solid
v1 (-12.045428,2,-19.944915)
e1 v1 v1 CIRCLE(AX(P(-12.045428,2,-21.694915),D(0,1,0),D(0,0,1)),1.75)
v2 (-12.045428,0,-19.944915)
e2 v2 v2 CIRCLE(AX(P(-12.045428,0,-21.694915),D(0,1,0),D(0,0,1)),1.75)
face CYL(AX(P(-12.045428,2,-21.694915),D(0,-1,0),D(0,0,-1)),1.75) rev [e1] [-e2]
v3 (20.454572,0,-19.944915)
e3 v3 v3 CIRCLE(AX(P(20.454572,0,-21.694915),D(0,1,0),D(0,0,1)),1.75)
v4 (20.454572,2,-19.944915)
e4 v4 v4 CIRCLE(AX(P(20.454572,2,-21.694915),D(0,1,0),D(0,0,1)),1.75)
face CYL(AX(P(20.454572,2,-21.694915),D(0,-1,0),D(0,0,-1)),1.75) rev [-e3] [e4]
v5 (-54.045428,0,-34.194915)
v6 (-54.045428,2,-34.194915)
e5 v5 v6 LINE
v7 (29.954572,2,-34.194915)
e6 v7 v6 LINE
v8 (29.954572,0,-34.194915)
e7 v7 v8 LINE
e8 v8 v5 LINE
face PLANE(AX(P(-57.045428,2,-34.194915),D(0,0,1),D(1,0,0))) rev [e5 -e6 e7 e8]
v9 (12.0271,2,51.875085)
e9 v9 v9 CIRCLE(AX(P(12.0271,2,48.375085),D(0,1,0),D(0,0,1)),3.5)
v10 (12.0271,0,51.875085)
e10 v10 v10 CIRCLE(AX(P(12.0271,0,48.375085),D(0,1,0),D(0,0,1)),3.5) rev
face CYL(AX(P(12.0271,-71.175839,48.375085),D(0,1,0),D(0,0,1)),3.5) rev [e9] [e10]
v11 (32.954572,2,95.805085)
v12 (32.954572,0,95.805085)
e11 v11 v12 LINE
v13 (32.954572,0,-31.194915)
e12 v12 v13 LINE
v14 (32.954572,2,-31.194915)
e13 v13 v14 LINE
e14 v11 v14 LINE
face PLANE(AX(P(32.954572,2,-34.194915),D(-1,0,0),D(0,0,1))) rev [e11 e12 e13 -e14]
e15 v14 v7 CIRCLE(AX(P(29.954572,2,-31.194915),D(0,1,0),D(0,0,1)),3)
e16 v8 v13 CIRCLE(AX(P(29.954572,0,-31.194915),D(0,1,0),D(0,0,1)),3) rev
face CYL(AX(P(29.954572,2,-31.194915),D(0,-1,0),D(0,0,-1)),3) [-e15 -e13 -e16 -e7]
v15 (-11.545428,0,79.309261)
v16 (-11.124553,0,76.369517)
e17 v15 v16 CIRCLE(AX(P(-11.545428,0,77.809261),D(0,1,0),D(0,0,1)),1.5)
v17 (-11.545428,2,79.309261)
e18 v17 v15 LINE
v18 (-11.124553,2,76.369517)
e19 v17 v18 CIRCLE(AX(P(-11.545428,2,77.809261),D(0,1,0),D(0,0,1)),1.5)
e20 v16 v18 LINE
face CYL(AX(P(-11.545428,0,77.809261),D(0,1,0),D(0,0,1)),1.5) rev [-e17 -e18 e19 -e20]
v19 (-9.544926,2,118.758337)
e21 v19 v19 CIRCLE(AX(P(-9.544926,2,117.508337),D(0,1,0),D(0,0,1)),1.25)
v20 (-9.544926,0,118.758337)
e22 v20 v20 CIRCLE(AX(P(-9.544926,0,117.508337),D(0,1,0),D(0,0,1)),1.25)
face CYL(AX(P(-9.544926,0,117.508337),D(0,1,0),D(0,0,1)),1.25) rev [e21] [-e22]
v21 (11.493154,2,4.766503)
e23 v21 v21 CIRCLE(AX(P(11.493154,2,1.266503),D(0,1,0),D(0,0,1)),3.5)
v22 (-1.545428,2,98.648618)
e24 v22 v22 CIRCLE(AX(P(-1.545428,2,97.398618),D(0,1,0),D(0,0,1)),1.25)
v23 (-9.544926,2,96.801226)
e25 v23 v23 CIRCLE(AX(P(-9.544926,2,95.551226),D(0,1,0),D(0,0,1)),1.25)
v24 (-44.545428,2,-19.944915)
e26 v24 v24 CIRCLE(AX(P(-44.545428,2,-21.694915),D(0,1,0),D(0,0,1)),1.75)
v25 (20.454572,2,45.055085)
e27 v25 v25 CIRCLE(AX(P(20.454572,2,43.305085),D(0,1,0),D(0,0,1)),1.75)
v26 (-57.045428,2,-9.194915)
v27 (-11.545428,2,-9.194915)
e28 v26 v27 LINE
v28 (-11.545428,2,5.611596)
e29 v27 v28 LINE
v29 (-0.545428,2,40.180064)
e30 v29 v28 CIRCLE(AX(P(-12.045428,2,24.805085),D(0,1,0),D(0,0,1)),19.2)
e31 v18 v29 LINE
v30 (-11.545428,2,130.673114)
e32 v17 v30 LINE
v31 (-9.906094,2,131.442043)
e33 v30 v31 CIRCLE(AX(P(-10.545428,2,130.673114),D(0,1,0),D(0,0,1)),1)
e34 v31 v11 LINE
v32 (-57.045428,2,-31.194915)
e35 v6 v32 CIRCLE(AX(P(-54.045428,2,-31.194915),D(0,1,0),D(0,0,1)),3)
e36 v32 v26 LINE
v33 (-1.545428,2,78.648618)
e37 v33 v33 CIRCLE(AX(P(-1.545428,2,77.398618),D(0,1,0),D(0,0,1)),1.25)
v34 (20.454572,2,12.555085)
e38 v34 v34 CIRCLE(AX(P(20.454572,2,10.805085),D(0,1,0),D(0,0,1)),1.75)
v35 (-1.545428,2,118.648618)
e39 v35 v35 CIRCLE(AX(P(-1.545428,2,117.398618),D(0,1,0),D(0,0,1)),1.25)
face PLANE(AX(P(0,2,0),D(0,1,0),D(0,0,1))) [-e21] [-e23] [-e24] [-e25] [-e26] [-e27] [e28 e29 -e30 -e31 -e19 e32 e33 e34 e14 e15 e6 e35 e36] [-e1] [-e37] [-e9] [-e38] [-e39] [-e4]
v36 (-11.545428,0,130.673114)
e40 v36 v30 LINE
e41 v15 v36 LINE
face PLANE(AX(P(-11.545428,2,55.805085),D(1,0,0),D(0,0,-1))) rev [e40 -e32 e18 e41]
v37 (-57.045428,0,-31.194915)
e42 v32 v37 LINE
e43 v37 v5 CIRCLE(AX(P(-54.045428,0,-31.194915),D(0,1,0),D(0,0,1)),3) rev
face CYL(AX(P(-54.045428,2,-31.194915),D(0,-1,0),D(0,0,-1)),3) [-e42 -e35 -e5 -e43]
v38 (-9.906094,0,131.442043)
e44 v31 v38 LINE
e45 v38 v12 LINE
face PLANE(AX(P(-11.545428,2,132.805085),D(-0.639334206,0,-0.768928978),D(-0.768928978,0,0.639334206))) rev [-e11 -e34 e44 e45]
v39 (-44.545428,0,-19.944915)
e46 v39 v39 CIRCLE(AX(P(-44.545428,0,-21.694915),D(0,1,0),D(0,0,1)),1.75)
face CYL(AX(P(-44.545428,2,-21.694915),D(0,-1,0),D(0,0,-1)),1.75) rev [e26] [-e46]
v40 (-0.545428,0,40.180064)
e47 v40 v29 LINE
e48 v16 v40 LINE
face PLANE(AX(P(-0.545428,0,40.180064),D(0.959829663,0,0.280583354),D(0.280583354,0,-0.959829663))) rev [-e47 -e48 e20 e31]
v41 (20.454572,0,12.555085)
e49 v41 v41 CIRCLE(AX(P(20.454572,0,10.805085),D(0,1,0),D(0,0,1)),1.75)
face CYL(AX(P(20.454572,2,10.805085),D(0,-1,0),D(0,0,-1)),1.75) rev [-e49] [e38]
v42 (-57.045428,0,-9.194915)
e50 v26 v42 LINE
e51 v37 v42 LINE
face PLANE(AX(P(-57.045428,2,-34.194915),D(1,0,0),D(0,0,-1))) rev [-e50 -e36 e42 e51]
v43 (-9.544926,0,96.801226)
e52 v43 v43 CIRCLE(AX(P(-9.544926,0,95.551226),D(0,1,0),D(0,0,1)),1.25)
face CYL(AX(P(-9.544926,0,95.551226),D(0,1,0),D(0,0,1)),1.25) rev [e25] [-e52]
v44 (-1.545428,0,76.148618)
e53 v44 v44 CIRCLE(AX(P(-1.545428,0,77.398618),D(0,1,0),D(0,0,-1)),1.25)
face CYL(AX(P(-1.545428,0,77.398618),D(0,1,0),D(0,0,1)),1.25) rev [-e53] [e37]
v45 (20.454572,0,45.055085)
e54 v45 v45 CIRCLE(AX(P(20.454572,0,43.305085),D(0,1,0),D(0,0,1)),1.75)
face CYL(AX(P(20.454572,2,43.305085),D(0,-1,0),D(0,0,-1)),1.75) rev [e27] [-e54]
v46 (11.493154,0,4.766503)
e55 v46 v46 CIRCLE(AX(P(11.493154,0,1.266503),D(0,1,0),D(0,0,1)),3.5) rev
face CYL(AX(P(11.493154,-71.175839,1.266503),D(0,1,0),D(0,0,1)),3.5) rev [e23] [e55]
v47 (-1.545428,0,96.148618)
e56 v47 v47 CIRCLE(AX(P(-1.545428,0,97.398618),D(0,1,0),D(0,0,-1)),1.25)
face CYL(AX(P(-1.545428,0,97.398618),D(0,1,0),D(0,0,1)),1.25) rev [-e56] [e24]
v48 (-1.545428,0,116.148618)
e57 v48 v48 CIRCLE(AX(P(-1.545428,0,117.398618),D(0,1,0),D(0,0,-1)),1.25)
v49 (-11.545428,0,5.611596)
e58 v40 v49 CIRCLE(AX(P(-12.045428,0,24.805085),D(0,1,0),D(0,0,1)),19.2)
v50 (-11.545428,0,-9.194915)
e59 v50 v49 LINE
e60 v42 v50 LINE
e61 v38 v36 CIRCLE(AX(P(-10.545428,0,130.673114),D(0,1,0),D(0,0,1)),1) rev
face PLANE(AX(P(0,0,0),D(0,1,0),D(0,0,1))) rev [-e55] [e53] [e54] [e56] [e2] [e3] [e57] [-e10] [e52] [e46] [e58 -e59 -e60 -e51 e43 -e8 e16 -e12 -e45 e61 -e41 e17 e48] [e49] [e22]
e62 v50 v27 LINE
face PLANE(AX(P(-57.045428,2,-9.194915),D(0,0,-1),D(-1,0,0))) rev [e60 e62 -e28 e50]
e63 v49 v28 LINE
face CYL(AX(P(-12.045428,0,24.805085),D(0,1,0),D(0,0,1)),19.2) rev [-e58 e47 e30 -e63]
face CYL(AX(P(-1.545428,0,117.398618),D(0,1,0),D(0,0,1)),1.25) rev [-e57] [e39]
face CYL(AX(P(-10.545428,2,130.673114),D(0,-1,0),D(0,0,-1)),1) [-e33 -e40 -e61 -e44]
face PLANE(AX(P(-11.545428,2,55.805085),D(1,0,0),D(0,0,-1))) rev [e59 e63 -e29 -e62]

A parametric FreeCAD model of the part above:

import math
import FreeCAD as App
import Part
import Sketcher


def edges_at(feature, points):
    """Names of the edges that pass closest to the given points."""
    edges = feature.Shape.Edges
    near = lambda p: min(range(len(edges)), key=lambda i: edges[i].distToShape(Part.Vertex(*p))[0])
    return sorted({f"Edge{near(p) + 1}" for p in points})

doc = App.newDocument("Part")
params = doc.addObject("Spreadsheet::Sheet", "Params")
for row, (alias, value) in enumerate([
    ("sketch1_diameter", "3.5 mm"),
    ("sketch1_width", "90 mm"),
    ("sketch1_width2", "29 mm"),
    ("sketch1_height", "25 mm"),
    ("sketch1_height2", "65 mm"),
    ("pad1_length", "2 mm"),
    ("sketch2_diameter", "7 mm"),
    ("sketch2_width", "29 mm"),
    ("sketch2_height", "65 mm"),
    ("pad2_length", "2 mm"),
    ("sketch3_diameter", "38.4 mm"),
    ("fillet_radius", "3 mm"),
    ("sketch5_diameter", "3 mm"),
    ("fillet2_radius", "1 mm"),
    ("sketch6_diameter", "2.5 mm"),
    ("sketch7_diameter", "2.5 mm"),
], start=1):
    params.set(f"A{row}", alias)
    params.set(f"B{row}", "=" + value)
    params.setAlias(f"B{row}", alias)

body = doc.addObject("PartDesign::Body", "Body")

sketch1 = doc.addObject("Sketcher::SketchObject", "Sketch")
body.addObject(sketch1)
sketch1.AttachmentSupport = (doc.XZ_Plane, [""])
sketch1.MapMode = "FlatFace"
sketch1.addGeometry([
    Part.LineSegment(App.Vector(32.954572, -34.194915, 0), App.Vector(-57.045428, -34.194915, 0)),
    Part.LineSegment(App.Vector(-57.045428, -34.194915, 0), App.Vector(-57.045428, -9.194915, 0)),
    Part.LineSegment(App.Vector(-57.045428, -9.194915, 0), App.Vector(17.454572, -9.194915, 0)),
    Part.LineSegment(App.Vector(17.454572, -9.194915, 0), App.Vector(17.454572, 55.805085, 0)),
    Part.LineSegment(App.Vector(17.454572, 55.805085, 0), App.Vector(-11.545428, 55.805085, 0)),
    Part.LineSegment(App.Vector(-11.545428, 55.805085, 0), App.Vector(-11.545428, 132.805085, 0)),
    Part.LineSegment(App.Vector(-11.545428, 132.805085, 0), App.Vector(32.954572, 95.805085, 0)),
    Part.LineSegment(App.Vector(32.954572, 95.805085, 0), App.Vector(32.954572, -34.194915, 0)),
    Part.Circle(App.Vector(20.454572, 43.305085, 0), App.Vector(0, 0, 1), 1.75),
    Part.Circle(App.Vector(20.454572, 10.805085, 0), App.Vector(0, 0, 1), 1.75),
    Part.Circle(App.Vector(20.454572, -21.694915, 0), App.Vector(0, 0, 1), 1.75),
    Part.Circle(App.Vector(-12.045428, -21.694915, 0), App.Vector(0, 0, 1), 1.75),
    Part.Circle(App.Vector(-44.545428, -21.694915, 0), App.Vector(0, 0, 1), 1.75),
], False)
sketch1.addConstraint([
    Sketcher.Constraint("Coincident", 0, 2, 1, 1),
    Sketcher.Constraint("Coincident", 1, 2, 2, 1),
    Sketcher.Constraint("Coincident", 2, 2, 3, 1),
    Sketcher.Constraint("Coincident", 3, 2, 4, 1),
    Sketcher.Constraint("Coincident", 4, 2, 5, 1),
    Sketcher.Constraint("Coincident", 5, 2, 6, 1),
    Sketcher.Constraint("Coincident", 6, 2, 7, 1),
    Sketcher.Constraint("Coincident", 7, 2, 0, 1),
    Sketcher.Constraint("Horizontal", 0),
    Sketcher.Constraint("Vertical", 1),
    Sketcher.Constraint("Horizontal", 2),
    Sketcher.Constraint("Vertical", 3),
    Sketcher.Constraint("Horizontal", 4),
    Sketcher.Constraint("Vertical", 5),
    Sketcher.Constraint("Vertical", 7),
    Sketcher.Constraint("Equal", 8, 9),
    Sketcher.Constraint("Equal", 9, 10),
    Sketcher.Constraint("Equal", 10, 11),
    Sketcher.Constraint("Equal", 11, 12),
    Sketcher.Constraint("Horizontal", 10, 3, 11, 3),
    Sketcher.Constraint("Horizontal", 11, 3, 12, 3),
    Sketcher.Constraint("Vertical", 8, 3, 9, 3),
    Sketcher.Constraint("Vertical", 9, 3, 10, 3),
    Sketcher.Constraint("Diameter", 8, 3.5),
    Sketcher.Constraint("DistanceX", 0, 2, 0, 1, 90.0),
    Sketcher.Constraint("DistanceX", 4, 2, 4, 1, 29.0),
    Sketcher.Constraint("DistanceY", 1, 1, 1, 2, 25.0),
    Sketcher.Constraint("DistanceY", 3, 1, 3, 2, 65.0),
    Sketcher.Constraint("DistanceY", 5, 1, 5, 2, 77.0),
    Sketcher.Constraint("DistanceY", 7, 2, 7, 1, 130.0),
    Sketcher.Constraint("DistanceX", 2, 1, 2, 2, 74.5),
    Sketcher.Constraint("DistanceY", 10, 3, 8, 3, 65.0),
    Sketcher.Constraint("DistanceX", 12, 3, 10, 3, 65.0),
    Sketcher.Constraint("DistanceX", 0, 2, 11, 3, 45.0),
    Sketcher.Constraint("DistanceY", 0, 2, 9, 3, 45.0),
    Sketcher.Constraint("DistanceX", 2, 2, 10, 3, 3.0),
    Sketcher.Constraint("DistanceY", 9, 3, 8, 3, 32.5),
    Sketcher.Constraint("DistanceX", -1, 1, 8, 3, 20.454572),
    Sketcher.Constraint("DistanceY", -1, 1, 8, 3, 43.305085),
])
sketch1.setExpression("Constraints[23]", "Params.sketch1_diameter")
sketch1.setExpression("Constraints[24]", "Params.sketch1_width")
sketch1.setExpression("Constraints[25]", "Params.sketch1_width2")
sketch1.setExpression("Constraints[26]", "Params.sketch1_height")
sketch1.setExpression("Constraints[27]", "Params.sketch1_height2")
pad1 = doc.addObject("PartDesign::Pad", "Pad")
body.addObject(pad1)
pad1.Profile = sketch1
pad1.setExpression("Length", "Params.pad1_length")
pad1.Reversed = True

sketch2 = doc.addObject("Sketcher::SketchObject", "Sketch001")
body.addObject(sketch2)
sketch2.AttachmentSupport = (doc.XZ_Plane, [""])
sketch2.MapMode = "FlatFace"
sketch2.AttachmentOffset = App.Placement(App.Vector(0, 0, -2), App.Rotation())
sketch2.addGeometry([
    Part.LineSegment(App.Vector(-11.545428, -9.194915, 0), App.Vector(-11.545428, 55.805085, 0)),
    Part.LineSegment(App.Vector(-11.545428, 55.805085, 0), App.Vector(17.454572, 55.805085, 0)),
    Part.LineSegment(App.Vector(17.454572, 55.805085, 0), App.Vector(17.454572, -9.194915, 0)),
    Part.LineSegment(App.Vector(17.454572, -9.194915, 0), App.Vector(-11.545428, -9.194915, 0)),
    Part.Circle(App.Vector(12.0271, 48.375085, 0), App.Vector(0, 0, 1), 3.5),
    Part.Circle(App.Vector(11.493154, 1.266503, 0), App.Vector(0, 0, 1), 3.5),
], False)
sketch2.addConstraint([
    Sketcher.Constraint("Coincident", 0, 2, 1, 1),
    Sketcher.Constraint("Coincident", 1, 2, 2, 1),
    Sketcher.Constraint("Coincident", 2, 2, 3, 1),
    Sketcher.Constraint("Coincident", 3, 2, 0, 1),
    Sketcher.Constraint("Vertical", 0),
    Sketcher.Constraint("Horizontal", 1),
    Sketcher.Constraint("Vertical", 2),
    Sketcher.Constraint("Horizontal", 3),
    Sketcher.Constraint("Equal", 4, 5),
    Sketcher.Constraint("Diameter", 4, 7.0),
    Sketcher.Constraint("DistanceX", 1, 1, 1, 2, 29.0),
    Sketcher.Constraint("DistanceY", 0, 1, 0, 2, 65.0),
    Sketcher.Constraint("DistanceY", 4, 3, 0, 2, 7.43),
    Sketcher.Constraint("DistanceX", -1, 1, 4, 3, 12.0271),
    Sketcher.Constraint("DistanceX", 0, 2, -1, 1, 11.545428),
    Sketcher.Constraint("DistanceY", -1, 1, 4, 3, 48.375085),
    Sketcher.Constraint("DistanceX", -1, 1, 5, 3, 11.493154),
    Sketcher.Constraint("DistanceY", -1, 1, 5, 3, 1.266503),
])
sketch2.setExpression("Constraints[9]", "Params.sketch2_diameter")
sketch2.setExpression("Constraints[10]", "Params.sketch2_width")
sketch2.setExpression("Constraints[11]", "Params.sketch2_height")
pad2 = doc.addObject("PartDesign::Pad", "Pad001")
body.addObject(pad2)
pad2.Profile = sketch2
pad2.setExpression("Length", "Params.pad2_length")

sketch3 = doc.addObject("Sketcher::SketchObject", "Sketch002")
body.addObject(sketch3)
sketch3.AttachmentSupport = (doc.XZ_Plane, [""])
sketch3.MapMode = "FlatFace"
sketch3.AttachmentOffset = App.Placement(App.Vector(0, 0, -2), App.Rotation())
sketch3.addGeometry(Part.Circle(App.Vector(-12.045428, 24.805085, 0), App.Vector(0, 0, 1), 19.2), False)
sketch3.addConstraint([
    Sketcher.Constraint("Diameter", 0, 38.4),
    Sketcher.Constraint("DistanceX", 0, 3, -1, 1, 12.045428),
    Sketcher.Constraint("DistanceY", -1, 1, 0, 3, 24.805085),
])
sketch3.setExpression("Constraints[0]", "Params.sketch3_diameter")
pocket1 = doc.addObject("PartDesign::Pocket", "Pocket")
body.addObject(pocket1)
pocket1.Profile = sketch3
pocket1.Type = "ThroughAll"
pocket1.Midplane = True

sketch4 = doc.addObject("Sketcher::SketchObject", "Sketch003")
body.addObject(sketch4)
sketch4.AttachmentSupport = (doc.XZ_Plane, [""])
sketch4.MapMode = "FlatFace"
sketch4.AttachmentOffset = App.Placement(App.Vector(0, 0, -2), App.Rotation())
sketch4.addGeometry([
    Part.LineSegment(App.Vector(-11.545428, 77.809261, 0), App.Vector(-0.545428, 40.180064, 0)),
    Part.ArcOfCircle(Part.Circle(App.Vector(-12.10703, 24.627628, 0), App.Vector(0, 0, 1), 19.379085), math.radians(53.373076), math.radians(88.339348)),
    Part.LineSegment(App.Vector(-11.545428, 43.998573, 0), App.Vector(-11.545428, 77.809261, 0)),
], False)
sketch4.addConstraint([
    Sketcher.Constraint("Coincident", 0, 2, 1, 1),
    Sketcher.Constraint("Coincident", 1, 2, 2, 1),
    Sketcher.Constraint("Coincident", 2, 2, 0, 1),
    Sketcher.Constraint("Vertical", 2),
    Sketcher.Constraint("DistanceX", 1, 2, 0, 2, 11.0),
    Sketcher.Constraint("Radius", 1, 19.379085),
    Sketcher.Constraint("DistanceY", 2, 1, 2, 2, 33.810688),
    Sketcher.Constraint("DistanceX", 1, 3, 0, 2, 11.561602),
    Sketcher.Constraint("DistanceX", 1, 3, -1, 1, 12.10703),
    Sketcher.Constraint("DistanceY", -1, 1, 2, 2, 77.809261),
])
pocket2 = doc.addObject("PartDesign::Pocket", "Pocket001")
body.addObject(pocket2)
pocket2.Profile = sketch4
pocket2.Type = "ThroughAll"
pocket2.Midplane = True
doc.recompute()

fillet = doc.addObject("PartDesign::Fillet", "Fillet")
body.addObject(fillet)
fillet.Base = (pocket2, edges_at(pocket2, [(-57.045, 1, -34.195), (32.955, 1, -34.195)]))
fillet.setExpression("Radius", "Params.fillet_radius")

sketch5 = doc.addObject("Sketcher::SketchObject", "Sketch004")
body.addObject(sketch5)
sketch5.AttachmentSupport = (doc.XZ_Plane, [""])
sketch5.MapMode = "FlatFace"
sketch5.AttachmentOffset = App.Placement(App.Vector(0, 0, -2), App.Rotation())
sketch5.addGeometry(Part.Circle(App.Vector(-11.545428, 77.809261, 0), App.Vector(0, 0, 1), 1.5), False)
sketch5.addConstraint([
    Sketcher.Constraint("Diameter", 0, 3.0),
    Sketcher.Constraint("DistanceX", 0, 3, -1, 1, 11.545428),
    Sketcher.Constraint("DistanceY", -1, 1, 0, 3, 77.809261),
])
sketch5.setExpression("Constraints[0]", "Params.sketch5_diameter")
pocket3 = doc.addObject("PartDesign::Pocket", "Pocket002")
body.addObject(pocket3)
pocket3.Profile = sketch5
pocket3.Type = "ThroughAll"
pocket3.Midplane = True
doc.recompute()

fillet2 = doc.addObject("PartDesign::Fillet", "Fillet001")
body.addObject(fillet2)
fillet2.Base = (pocket3, edges_at(pocket3, [(-11.545, 1, 132.805)]))
fillet2.setExpression("Radius", "Params.fillet2_radius")

sketch6 = doc.addObject("Sketcher::SketchObject", "Sketch005")
body.addObject(sketch6)
sketch6.AttachmentSupport = (doc.XZ_Plane, [""])
sketch6.MapMode = "FlatFace"
sketch6.AttachmentOffset = App.Placement(App.Vector(0, 0, -2), App.Rotation())
sketch6.addGeometry([
    Part.Circle(App.Vector(-9.544926, 95.551226, 0), App.Vector(0, 0, 1), 1.25),
    Part.Circle(App.Vector(-9.544926, 117.508337, 0), App.Vector(0, 0, 1), 1.25),
], False)
sketch6.addConstraint([
    Sketcher.Constraint("Equal", 0, 1),
    Sketcher.Constraint("Vertical", 0, 3, 1, 3),
    Sketcher.Constraint("Diameter", 0, 2.5),
    Sketcher.Constraint("DistanceY", 0, 3, 1, 3, 21.957112),
    Sketcher.Constraint("DistanceX", 0, 3, -1, 1, 9.544926),
    Sketcher.Constraint("DistanceY", -1, 1, 0, 3, 95.551226),
])
sketch6.setExpression("Constraints[2]", "Params.sketch6_diameter")
pocket4 = doc.addObject("PartDesign::Pocket", "Pocket003")
body.addObject(pocket4)
pocket4.Profile = sketch6
pocket4.Type = "ThroughAll"
pocket4.Midplane = True

sketch7 = doc.addObject("Sketcher::SketchObject", "Sketch006")
body.addObject(sketch7)
sketch7.AttachmentSupport = (doc.XZ_Plane, [""])
sketch7.MapMode = "FlatFace"
sketch7.AttachmentOffset = App.Placement(App.Vector(0, 0, -2), App.Rotation())
sketch7.addGeometry([
    Part.Circle(App.Vector(-1.545428, 117.398618, 0), App.Vector(0, 0, 1), 1.25),
    Part.Circle(App.Vector(-1.545428, 97.398618, 0), App.Vector(0, 0, 1), 1.25),
    Part.Circle(App.Vector(-1.545428, 77.398618, 0), App.Vector(0, 0, 1), 1.25),
], False)
sketch7.addConstraint([
    Sketcher.Constraint("Equal", 0, 1),
    Sketcher.Constraint("Equal", 1, 2),
    Sketcher.Constraint("Vertical", 0, 3, 1, 3),
    Sketcher.Constraint("Vertical", 1, 3, 2, 3),
    Sketcher.Constraint("Diameter", 0, 2.5),
    Sketcher.Constraint("DistanceY", 1, 3, 0, 3, 20.0),
    Sketcher.Constraint("DistanceY", 2, 3, 1, 3, 20.0),
    Sketcher.Constraint("DistanceX", 0, 3, -1, 1, 1.545428),
    Sketcher.Constraint("DistanceY", -1, 1, 0, 3, 117.398618),
])
sketch7.setExpression("Constraints[4]", "Params.sketch7_diameter")
pocket5 = doc.addObject("PartDesign::Pocket", "Pocket004")
body.addObject(pocket5)
pocket5.Profile = sketch7
pocket5.Type = "ThroughAll"
pocket5.Midplane = True

doc.recompute()
